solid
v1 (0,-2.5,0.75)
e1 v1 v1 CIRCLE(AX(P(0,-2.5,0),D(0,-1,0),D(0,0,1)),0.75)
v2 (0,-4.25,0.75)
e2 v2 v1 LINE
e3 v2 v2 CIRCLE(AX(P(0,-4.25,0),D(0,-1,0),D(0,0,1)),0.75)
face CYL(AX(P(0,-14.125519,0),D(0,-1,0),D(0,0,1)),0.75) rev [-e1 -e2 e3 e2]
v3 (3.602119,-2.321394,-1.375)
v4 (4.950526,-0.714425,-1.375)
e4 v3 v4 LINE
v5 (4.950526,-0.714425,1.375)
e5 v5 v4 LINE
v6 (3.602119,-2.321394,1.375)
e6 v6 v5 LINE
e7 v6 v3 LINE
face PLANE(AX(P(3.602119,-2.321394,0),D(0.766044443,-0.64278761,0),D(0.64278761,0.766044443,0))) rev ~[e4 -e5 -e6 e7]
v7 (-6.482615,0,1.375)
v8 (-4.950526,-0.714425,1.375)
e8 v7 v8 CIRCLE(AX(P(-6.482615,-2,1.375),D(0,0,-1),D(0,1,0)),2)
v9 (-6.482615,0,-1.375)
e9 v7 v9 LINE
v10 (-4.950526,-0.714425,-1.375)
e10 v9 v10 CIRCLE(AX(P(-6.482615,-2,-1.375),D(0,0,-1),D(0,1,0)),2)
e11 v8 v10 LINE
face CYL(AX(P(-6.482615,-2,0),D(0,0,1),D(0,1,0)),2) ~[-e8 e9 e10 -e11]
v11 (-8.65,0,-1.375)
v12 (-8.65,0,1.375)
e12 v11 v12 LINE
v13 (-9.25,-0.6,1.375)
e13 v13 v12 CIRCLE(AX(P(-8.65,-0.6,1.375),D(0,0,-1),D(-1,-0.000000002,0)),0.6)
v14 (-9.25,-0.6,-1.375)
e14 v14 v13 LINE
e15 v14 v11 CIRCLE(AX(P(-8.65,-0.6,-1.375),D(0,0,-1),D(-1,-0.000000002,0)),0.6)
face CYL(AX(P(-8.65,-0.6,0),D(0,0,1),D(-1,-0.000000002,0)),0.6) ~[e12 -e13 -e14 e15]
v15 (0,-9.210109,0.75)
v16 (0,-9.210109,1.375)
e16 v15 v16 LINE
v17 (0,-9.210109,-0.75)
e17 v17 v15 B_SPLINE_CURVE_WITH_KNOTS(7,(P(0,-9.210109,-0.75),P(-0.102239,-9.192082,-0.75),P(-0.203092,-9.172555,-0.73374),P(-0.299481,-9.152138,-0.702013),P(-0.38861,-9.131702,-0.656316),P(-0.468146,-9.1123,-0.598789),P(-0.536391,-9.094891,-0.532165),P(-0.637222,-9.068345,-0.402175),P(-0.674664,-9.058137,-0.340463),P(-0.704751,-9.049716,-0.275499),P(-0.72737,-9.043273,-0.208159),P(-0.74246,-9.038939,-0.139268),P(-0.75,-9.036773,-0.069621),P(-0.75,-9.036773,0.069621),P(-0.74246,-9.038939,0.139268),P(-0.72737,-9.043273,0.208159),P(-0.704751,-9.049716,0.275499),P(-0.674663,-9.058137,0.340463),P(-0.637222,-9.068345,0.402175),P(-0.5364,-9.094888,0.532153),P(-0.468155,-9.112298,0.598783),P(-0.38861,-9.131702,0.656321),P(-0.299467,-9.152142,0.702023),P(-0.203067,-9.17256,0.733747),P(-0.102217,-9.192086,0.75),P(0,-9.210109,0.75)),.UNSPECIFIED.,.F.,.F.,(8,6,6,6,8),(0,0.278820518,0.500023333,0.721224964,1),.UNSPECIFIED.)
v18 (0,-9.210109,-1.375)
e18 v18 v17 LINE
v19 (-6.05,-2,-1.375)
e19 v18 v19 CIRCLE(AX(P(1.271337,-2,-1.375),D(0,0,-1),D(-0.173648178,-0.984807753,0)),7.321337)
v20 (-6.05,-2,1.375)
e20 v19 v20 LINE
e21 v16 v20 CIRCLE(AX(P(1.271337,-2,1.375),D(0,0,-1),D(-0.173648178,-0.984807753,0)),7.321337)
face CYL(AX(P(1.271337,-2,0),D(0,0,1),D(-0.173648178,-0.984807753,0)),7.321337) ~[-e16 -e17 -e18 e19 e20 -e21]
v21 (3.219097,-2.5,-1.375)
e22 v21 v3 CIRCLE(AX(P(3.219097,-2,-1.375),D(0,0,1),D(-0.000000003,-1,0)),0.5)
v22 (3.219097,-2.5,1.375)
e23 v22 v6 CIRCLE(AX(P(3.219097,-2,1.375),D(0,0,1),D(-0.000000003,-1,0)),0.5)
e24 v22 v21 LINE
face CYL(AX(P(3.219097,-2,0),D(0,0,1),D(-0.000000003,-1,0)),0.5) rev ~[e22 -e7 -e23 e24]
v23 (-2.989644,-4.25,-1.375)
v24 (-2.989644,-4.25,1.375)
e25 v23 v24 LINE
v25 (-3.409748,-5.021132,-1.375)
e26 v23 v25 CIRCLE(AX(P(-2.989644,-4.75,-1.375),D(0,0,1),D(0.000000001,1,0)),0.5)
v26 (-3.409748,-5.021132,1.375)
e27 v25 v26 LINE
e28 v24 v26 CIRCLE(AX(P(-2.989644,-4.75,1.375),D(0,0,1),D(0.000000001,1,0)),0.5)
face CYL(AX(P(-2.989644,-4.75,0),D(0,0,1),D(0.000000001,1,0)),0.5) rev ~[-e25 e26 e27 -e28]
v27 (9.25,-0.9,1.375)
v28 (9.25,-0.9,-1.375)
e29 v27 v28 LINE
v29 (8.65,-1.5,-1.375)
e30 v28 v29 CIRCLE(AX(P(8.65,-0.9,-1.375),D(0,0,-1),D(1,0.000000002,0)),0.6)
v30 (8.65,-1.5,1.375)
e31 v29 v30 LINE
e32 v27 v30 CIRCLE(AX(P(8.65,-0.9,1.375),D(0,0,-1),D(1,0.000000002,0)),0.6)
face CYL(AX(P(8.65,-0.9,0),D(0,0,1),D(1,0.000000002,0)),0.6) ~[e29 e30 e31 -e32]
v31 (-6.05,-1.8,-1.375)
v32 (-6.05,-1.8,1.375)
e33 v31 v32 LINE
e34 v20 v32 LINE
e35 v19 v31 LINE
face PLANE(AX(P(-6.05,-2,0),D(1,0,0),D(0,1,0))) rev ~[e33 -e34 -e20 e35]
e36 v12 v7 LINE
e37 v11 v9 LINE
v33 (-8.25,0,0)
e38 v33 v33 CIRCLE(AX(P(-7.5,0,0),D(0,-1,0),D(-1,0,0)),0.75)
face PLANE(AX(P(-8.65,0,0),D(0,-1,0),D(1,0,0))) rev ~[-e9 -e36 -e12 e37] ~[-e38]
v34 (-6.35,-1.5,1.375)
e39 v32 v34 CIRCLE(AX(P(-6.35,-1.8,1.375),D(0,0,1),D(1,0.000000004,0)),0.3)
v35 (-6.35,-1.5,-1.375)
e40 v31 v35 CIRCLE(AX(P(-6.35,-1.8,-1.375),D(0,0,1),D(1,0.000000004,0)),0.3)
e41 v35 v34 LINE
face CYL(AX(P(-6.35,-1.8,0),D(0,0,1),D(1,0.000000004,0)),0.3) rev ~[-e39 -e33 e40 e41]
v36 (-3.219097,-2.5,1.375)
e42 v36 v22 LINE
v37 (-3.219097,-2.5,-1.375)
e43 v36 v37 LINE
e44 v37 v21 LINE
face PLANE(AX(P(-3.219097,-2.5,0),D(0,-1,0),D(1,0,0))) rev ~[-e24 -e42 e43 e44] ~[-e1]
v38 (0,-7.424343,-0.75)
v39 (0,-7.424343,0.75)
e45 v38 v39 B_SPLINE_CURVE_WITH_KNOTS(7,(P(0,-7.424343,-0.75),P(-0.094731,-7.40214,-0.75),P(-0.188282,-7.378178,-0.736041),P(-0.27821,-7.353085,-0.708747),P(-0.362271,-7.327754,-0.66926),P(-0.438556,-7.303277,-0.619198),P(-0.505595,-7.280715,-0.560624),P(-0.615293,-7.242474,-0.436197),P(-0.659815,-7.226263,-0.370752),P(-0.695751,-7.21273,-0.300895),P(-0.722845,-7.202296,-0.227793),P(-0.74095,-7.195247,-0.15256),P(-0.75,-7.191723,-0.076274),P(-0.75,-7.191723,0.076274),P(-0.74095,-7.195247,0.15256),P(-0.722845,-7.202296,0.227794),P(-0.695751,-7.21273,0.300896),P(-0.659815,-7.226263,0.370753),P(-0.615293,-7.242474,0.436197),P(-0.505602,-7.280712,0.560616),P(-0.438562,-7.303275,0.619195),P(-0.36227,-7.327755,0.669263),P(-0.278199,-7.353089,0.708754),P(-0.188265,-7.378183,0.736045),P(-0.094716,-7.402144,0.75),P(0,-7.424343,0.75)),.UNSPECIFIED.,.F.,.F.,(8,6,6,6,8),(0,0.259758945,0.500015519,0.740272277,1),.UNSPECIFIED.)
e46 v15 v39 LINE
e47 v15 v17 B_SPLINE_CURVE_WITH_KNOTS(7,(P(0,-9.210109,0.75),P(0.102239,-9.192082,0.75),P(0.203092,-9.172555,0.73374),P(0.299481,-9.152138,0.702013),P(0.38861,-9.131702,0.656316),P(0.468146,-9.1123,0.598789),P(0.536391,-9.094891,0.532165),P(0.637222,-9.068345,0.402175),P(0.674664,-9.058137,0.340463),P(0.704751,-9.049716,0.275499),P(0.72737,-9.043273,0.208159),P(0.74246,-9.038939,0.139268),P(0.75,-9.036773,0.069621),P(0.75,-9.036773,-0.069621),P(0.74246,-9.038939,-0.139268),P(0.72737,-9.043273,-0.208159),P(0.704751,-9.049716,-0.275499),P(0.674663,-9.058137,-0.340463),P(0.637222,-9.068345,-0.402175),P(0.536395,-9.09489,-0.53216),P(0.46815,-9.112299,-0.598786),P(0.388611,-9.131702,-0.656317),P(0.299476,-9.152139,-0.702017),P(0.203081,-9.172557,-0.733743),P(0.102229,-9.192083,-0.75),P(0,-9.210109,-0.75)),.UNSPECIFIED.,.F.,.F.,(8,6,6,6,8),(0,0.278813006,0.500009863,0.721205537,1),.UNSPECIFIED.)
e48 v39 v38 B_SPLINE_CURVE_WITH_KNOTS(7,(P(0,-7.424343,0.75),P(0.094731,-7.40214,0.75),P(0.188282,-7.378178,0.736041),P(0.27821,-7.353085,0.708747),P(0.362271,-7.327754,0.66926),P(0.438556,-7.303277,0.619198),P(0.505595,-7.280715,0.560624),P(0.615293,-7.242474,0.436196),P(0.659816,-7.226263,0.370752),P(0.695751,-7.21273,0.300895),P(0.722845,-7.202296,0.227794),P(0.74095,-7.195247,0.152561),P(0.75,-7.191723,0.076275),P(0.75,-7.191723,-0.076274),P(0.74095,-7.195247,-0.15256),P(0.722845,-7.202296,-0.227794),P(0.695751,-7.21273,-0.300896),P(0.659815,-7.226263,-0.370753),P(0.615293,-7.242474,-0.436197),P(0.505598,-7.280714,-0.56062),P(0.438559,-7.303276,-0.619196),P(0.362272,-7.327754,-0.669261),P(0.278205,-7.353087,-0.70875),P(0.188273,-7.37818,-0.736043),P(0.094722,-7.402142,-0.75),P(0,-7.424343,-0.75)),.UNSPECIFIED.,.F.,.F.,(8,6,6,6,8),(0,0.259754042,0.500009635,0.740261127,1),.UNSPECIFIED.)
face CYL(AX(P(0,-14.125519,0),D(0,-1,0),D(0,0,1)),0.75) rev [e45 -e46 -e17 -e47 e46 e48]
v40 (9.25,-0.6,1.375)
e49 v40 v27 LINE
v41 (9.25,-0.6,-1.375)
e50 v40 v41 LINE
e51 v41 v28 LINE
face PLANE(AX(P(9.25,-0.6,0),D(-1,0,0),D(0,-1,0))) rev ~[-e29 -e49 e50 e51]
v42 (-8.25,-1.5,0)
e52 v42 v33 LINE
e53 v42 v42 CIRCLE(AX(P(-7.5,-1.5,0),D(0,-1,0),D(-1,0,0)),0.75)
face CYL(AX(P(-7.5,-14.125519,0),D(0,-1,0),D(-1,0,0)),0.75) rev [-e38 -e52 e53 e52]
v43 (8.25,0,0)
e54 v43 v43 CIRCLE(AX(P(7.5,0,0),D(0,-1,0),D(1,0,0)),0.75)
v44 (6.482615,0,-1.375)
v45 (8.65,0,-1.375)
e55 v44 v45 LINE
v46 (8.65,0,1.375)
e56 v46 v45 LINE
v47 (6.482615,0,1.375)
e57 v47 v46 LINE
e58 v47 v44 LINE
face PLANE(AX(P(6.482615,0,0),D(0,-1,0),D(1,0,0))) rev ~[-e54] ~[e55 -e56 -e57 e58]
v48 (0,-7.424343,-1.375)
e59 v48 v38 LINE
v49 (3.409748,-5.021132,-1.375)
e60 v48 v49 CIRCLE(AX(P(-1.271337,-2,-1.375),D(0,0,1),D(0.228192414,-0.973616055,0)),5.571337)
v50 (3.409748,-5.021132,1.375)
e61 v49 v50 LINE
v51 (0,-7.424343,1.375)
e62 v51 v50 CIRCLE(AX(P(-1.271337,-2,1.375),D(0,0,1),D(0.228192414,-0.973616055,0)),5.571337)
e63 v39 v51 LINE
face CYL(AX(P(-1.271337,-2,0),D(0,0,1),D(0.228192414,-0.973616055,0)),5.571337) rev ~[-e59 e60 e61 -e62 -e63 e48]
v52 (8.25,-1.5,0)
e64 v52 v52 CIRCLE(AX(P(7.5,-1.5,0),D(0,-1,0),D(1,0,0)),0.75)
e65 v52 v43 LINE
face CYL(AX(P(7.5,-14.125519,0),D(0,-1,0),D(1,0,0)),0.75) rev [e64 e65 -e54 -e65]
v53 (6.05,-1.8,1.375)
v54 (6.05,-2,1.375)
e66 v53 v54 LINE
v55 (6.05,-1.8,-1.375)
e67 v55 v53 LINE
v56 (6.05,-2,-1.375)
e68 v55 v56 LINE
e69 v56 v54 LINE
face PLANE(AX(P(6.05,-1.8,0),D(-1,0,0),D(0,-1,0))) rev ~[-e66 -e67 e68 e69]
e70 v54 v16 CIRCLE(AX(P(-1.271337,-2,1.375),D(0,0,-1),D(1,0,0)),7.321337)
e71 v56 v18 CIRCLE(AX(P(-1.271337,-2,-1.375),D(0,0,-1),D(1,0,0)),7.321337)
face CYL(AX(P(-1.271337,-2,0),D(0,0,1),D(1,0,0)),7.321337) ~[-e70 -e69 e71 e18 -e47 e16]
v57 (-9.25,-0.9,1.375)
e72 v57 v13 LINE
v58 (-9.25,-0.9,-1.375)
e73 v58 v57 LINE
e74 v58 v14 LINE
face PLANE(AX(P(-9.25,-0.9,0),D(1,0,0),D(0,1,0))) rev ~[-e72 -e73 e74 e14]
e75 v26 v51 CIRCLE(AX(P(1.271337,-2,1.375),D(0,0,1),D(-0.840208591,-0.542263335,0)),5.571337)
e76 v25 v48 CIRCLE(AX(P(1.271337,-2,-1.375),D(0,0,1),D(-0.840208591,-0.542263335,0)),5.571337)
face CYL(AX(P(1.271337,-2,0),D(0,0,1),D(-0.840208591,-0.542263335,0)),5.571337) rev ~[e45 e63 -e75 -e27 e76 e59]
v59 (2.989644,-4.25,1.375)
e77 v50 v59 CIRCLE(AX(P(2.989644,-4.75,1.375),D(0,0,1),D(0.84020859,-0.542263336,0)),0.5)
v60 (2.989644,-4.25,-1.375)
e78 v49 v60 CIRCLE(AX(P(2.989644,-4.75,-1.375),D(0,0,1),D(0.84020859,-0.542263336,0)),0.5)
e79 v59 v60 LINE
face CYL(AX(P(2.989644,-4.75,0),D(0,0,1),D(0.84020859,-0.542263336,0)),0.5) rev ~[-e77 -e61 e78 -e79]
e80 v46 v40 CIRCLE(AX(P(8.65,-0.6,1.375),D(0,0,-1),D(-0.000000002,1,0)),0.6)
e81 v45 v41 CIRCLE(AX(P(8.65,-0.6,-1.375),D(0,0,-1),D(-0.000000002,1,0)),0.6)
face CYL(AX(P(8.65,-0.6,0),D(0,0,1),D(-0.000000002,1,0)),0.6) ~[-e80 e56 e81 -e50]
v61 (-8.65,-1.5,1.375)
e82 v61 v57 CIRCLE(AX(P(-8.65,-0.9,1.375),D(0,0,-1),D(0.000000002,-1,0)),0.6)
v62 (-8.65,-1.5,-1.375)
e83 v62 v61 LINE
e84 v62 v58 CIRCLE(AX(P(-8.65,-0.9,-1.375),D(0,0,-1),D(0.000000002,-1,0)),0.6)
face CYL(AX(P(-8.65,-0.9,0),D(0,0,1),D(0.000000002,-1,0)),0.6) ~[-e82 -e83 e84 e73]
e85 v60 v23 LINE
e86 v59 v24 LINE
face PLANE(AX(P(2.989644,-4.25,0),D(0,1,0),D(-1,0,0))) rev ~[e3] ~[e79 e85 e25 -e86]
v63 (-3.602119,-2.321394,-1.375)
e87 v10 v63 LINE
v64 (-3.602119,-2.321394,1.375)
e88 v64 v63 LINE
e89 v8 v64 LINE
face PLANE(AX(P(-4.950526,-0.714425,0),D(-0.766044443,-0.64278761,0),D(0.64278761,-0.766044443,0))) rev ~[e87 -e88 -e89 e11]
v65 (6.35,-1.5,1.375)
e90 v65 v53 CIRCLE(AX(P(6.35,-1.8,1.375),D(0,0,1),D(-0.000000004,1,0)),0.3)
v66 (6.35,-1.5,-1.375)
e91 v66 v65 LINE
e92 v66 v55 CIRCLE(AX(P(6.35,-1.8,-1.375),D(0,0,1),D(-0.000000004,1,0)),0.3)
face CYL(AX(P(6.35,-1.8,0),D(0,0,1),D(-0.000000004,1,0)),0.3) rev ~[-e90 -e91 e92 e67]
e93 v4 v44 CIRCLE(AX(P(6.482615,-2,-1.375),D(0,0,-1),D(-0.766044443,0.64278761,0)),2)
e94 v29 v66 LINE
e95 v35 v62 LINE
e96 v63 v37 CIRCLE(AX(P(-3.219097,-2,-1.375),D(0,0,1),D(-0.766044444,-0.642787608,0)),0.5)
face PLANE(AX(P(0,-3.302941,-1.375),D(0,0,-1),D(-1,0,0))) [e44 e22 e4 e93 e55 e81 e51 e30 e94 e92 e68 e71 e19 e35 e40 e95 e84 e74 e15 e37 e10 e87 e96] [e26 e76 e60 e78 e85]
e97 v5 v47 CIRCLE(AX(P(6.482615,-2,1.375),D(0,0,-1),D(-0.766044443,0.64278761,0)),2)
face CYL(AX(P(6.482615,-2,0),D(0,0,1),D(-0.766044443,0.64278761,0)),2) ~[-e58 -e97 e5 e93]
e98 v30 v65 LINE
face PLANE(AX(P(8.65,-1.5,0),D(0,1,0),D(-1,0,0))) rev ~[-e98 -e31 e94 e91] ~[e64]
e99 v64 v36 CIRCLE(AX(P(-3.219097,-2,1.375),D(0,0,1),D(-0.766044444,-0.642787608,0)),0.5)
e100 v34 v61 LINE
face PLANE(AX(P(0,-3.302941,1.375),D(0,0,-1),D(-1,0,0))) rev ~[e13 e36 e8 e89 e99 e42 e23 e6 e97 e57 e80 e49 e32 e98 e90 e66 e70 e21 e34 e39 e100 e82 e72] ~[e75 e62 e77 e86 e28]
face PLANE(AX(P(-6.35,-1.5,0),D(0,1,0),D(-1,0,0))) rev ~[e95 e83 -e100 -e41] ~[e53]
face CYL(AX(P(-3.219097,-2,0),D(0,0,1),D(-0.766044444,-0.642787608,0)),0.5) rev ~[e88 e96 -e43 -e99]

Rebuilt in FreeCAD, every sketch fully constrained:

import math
import FreeCAD as App
import Part
import Sketcher

V = App.Vector
Q = App.Units.Quantity

doc = App.newDocument("Part")
params = doc.addObject("Spreadsheet::Sheet", "Params")
for row, (alias, value) in enumerate([
    ("sketch1_radius", "2 mm"),
    ("sketch1_radius2", "0.6 mm"),
    ("sketch1_radius3", "0.3 mm"),
    ("sketch1_radius4", "0.5 mm"),
    ("sketch1_width", "2.3 mm"),
    ("pad1_length", "2.75 mm"),
    ("sketch2_diameter", "1.5 mm"),
], start=1):
    params.set(f"A{row}", alias)
    params.set(f"B{row}", "=" + value)
    params.setAlias(f"B{row}", alias)

body = doc.addObject("PartDesign::Body", "Body")

sketch1 = body.newObject("Sketcher::SketchObject", "Sketch")
sketch1.AttachmentSupport = (doc.getObject("XY_Plane"), [""])
sketch1.MapMode = "FlatFace"
sketch1.addGeometry(Part.LineSegment(V(-6.48, 0, 0), V(-8.65, 0, 0)), False)
sketch1.addGeometry(Part.ArcOfCircle(Part.Circle(V(-8.65, -0.6, 0), V(0, 0, 1), 0.6), math.radians(90), math.radians(180)), False)
sketch1.addGeometry(Part.LineSegment(V(-9.25, -0.6, 0), V(-9.25, -0.9, 0)), False)
sketch1.addGeometry(Part.ArcOfCircle(Part.Circle(V(-8.65, -0.9, 0), V(0, 0, 1), 0.6), math.radians(180), math.radians(270)), False)
sketch1.addGeometry(Part.LineSegment(V(-8.65, -1.5, 0), V(-6.35, -1.5, 0)), False)
sketch1.addGeometry(Part.ArcOfCircle(Part.Circle(V(-6.35, -1.8, 0), V(0, 0, 1), 0.3), math.radians(0), math.radians(90)), False)
sketch1.addGeometry(Part.LineSegment(V(-6.05, -1.8, 0), V(-6.05, -2, 0)), False)
sketch1.addGeometry(Part.ArcOfCircle(Part.Circle(V(1.27, -2, 0), V(0, 0, 1), 7.32), math.radians(180), math.radians(260)), False)
sketch1.addGeometry(Part.ArcOfCircle(Part.Circle(V(-1.27, -2, 0), V(0, 0, 1), 7.32), math.radians(-80), math.radians(0)), False)
sketch1.addGeometry(Part.LineSegment(V(6.05, -2, 0), V(6.05, -1.8, 0)), False)
sketch1.addGeometry(Part.ArcOfCircle(Part.Circle(V(6.35, -1.8, 0), V(0, 0, 1), 0.3), math.radians(90), math.radians(180)), False)
sketch1.addGeometry(Part.LineSegment(V(6.35, -1.5, 0), V(8.65, -1.5, 0)), False)
sketch1.addGeometry(Part.ArcOfCircle(Part.Circle(V(8.65, -0.9, 0), V(0, 0, 1), 0.6), math.radians(-90), math.radians(0)), False)
sketch1.addGeometry(Part.LineSegment(V(9.25, -0.9, 0), V(9.25, -0.6, 0)), False)
sketch1.addGeometry(Part.ArcOfCircle(Part.Circle(V(8.65, -0.6, 0), V(0, 0, 1), 0.6), math.radians(0), math.radians(90)), False)
sketch1.addGeometry(Part.LineSegment(V(8.65, 0, 0), V(6.48, 0, 0)), False)
sketch1.addGeometry(Part.ArcOfCircle(Part.Circle(V(6.48, -2, 0), V(0, 0, 1), 2), math.radians(90), math.radians(140)), False)
sketch1.addGeometry(Part.LineSegment(V(4.95, -0.71, 0), V(3.6, -2.32, 0)), False)
sketch1.addGeometry(Part.ArcOfCircle(Part.Circle(V(3.22, -2, 0), V(0, 0, 1), 0.5), math.radians(-90), math.radians(-40)), False)
sketch1.addGeometry(Part.LineSegment(V(3.22, -2.5, 0), V(-3.22, -2.5, 0)), False)
sketch1.addGeometry(Part.ArcOfCircle(Part.Circle(V(-3.22, -2, 0), V(0, 0, 1), 0.5), math.radians(-140), math.radians(-90)), False)
sketch1.addGeometry(Part.LineSegment(V(-3.6, -2.32, 0), V(-4.95, -0.71, 0)), False)
sketch1.addGeometry(Part.ArcOfCircle(Part.Circle(V(-6.48, -2, 0), V(0, 0, 1), 2), math.radians(40), math.radians(90)), False)
sketch1.addGeometry(Part.ArcOfCircle(Part.Circle(V(2.99, -4.75, 0), V(0, 0, 1), 0.5), math.radians(-33), math.radians(90)), False)
sketch1.addGeometry(Part.ArcOfCircle(Part.Circle(V(-1.27, -2, 0), V(0, 0, 1), 5.57), math.radians(-77), math.radians(-33)), False)
sketch1.addGeometry(Part.ArcOfCircle(Part.Circle(V(1.27, -2, 0), V(0, 0, 1), 5.57), math.radians(-147), math.radians(-103)), False)
sketch1.addGeometry(Part.ArcOfCircle(Part.Circle(V(-2.99, -4.75, 0), V(0, 0, 1), 0.5), math.radians(90), math.radians(213)), False)
sketch1.addGeometry(Part.LineSegment(V(-2.99, -4.25, 0), V(2.99, -4.25, 0)), False)
sketch1.addConstraint(Sketcher.Constraint("Tangent", 0, 2, 1, 1))
sketch1.addConstraint(Sketcher.Constraint("Tangent", 1, 2, 2, 1))
sketch1.addConstraint(Sketcher.Constraint("Tangent", 2, 2, 3, 1))
sketch1.addConstraint(Sketcher.Constraint("Tangent", 3, 2, 4, 1))
sketch1.addConstraint(Sketcher.Constraint("Tangent", 4, 2, 5, 2))
sketch1.addConstraint(Sketcher.Constraint("Tangent", 5, 1, 6, 1))
sketch1.addConstraint(Sketcher.Constraint("Tangent", 6, 2, 7, 1))
sketch1.addConstraint(Sketcher.Constraint("Coincident", 7, 2, 8, 1))
sketch1.addConstraint(Sketcher.Constraint("Tangent", 8, 2, 9, 1))
sketch1.addConstraint(Sketcher.Constraint("Tangent", 9, 2, 10, 2))
sketch1.addConstraint(Sketcher.Constraint("Tangent", 10, 1, 11, 1))
sketch1.addConstraint(Sketcher.Constraint("Tangent", 11, 2, 12, 1))
sketch1.addConstraint(Sketcher.Constraint("Tangent", 12, 2, 13, 1))
sketch1.addConstraint(Sketcher.Constraint("Tangent", 13, 2, 14, 1))
sketch1.addConstraint(Sketcher.Constraint("Tangent", 14, 2, 15, 1))
sketch1.addConstraint(Sketcher.Constraint("Tangent", 15, 2, 16, 1))
sketch1.addConstraint(Sketcher.Constraint("Tangent", 16, 2, 17, 1))
sketch1.addConstraint(Sketcher.Constraint("Tangent", 17, 2, 18, 2))
sketch1.addConstraint(Sketcher.Constraint("Tangent", 18, 1, 19, 1))
sketch1.addConstraint(Sketcher.Constraint("Tangent", 19, 2, 20, 2))
sketch1.addConstraint(Sketcher.Constraint("Tangent", 20, 1, 21, 1))
sketch1.addConstraint(Sketcher.Constraint("Tangent", 21, 2, 22, 1))
sketch1.addConstraint(Sketcher.Constraint("Tangent", 22, 2, 0, 1))
sketch1.addConstraint(Sketcher.Constraint("Tangent", 23, 1, 24, 2))
sketch1.addConstraint(Sketcher.Constraint("Coincident", 24, 1, 25, 2))
sketch1.addConstraint(Sketcher.Constraint("Tangent", 25, 1, 26, 2))
sketch1.addConstraint(Sketcher.Constraint("Tangent", 26, 1, 27, 1))
sketch1.addConstraint(Sketcher.Constraint("Tangent", 27, 2, 23, 2))
sketch1.addConstraint(Sketcher.Constraint("Horizontal", 0))
sketch1.addConstraint(Sketcher.Constraint("Vertical", 2))
sketch1.addConstraint(Sketcher.Constraint("Horizontal", 4))
sketch1.addConstraint(Sketcher.Constraint("Vertical", 6))
sketch1.addConstraint(Sketcher.Constraint("Vertical", 9))
sketch1.addConstraint(Sketcher.Constraint("Horizontal", 11))
sketch1.addConstraint(Sketcher.Constraint("Vertical", 13))
sketch1.addConstraint(Sketcher.Constraint("Horizontal", 15))
sketch1.addConstraint(Sketcher.Constraint("Horizontal", 19))
sketch1.addConstraint(Sketcher.Constraint("Horizontal", 27))
sketch1.addConstraint(Sketcher.Constraint("Coincident", 24, 3, 8, 3))
sketch1.addConstraint(Sketcher.Constraint("Coincident", 25, 3, 7, 3))
sketch1.addConstraint(Sketcher.Constraint("Equal", 1, 3))
sketch1.addConstraint(Sketcher.Constraint("Equal", 7, 8))
sketch1.addConstraint(Sketcher.Constraint("Equal", 5, 10))
sketch1.addConstraint(Sketcher.Constraint("Equal", 3, 12))
sketch1.addConstraint(Sketcher.Constraint("Equal", 12, 14))
sketch1.addConstraint(Sketcher.Constraint("Equal", 18, 20))
sketch1.addConstraint(Sketcher.Constraint("Equal", 16, 22))
sketch1.addConstraint(Sketcher.Constraint("Equal", 20, 23))
sketch1.addConstraint(Sketcher.Constraint("Equal", 24, 25))
sketch1.addConstraint(Sketcher.Constraint("Equal", 23, 26))
sketch1.addConstraint(Sketcher.Constraint("Symmetric", 0, 2, 14, 2, -1, 1))
sketch1.addConstraint(Sketcher.Constraint("Symmetric", 7, 3, 8, 3, -2))
sketch1.addConstraint(Sketcher.Constraint("Symmetric", 16, 3, 22, 3, -2))
sketch1.addConstraint(Sketcher.Constraint("Horizontal", 5, 3, 10, 3))
sketch1.addConstraint(Sketcher.Constraint("Horizontal", 8, 3, 16, 3))
sketch1.addConstraint(Sketcher.Constraint("Horizontal", 16, 3, 18, 3))
sketch1.addConstraint(Sketcher.Constraint("Horizontal", 17, 2, 20, 1))
sketch1.addConstraint(Sketcher.Constraint("Radius", 16, Q("2 mm")))
sketch1.addConstraint(Sketcher.Constraint("Radius", 1, Q("0.6 mm")))
sketch1.addConstraint(Sketcher.Constraint("Radius", 5, Q("0.3 mm")))
sketch1.addConstraint(Sketcher.Constraint("Radius", 18, Q("0.5 mm")))
sketch1.addConstraint(Sketcher.Constraint("Angle", 17, Q("-130 deg")))
sketch1.addConstraint(Sketcher.Constraint("DistanceX", 4, 1, 4, 2, Q("2.3 mm")))
sketch1.addConstraint(Sketcher.Constraint("DistanceY", 2, 2, 2, 1, Q("0.3 mm")))
sketch1.addConstraint(Sketcher.Constraint("DistanceX", 3, 3, 10, 3, Q("15 mm")))
sketch1.addConstraint(Sketcher.Constraint("DistanceY", 23, 3, -1, 1, Q("4.75 mm")))
sketch1.addConstraint(Sketcher.Constraint("Radius", 7, Q("7.321337 mm")))
sketch1.addConstraint(Sketcher.Constraint("Radius", 24, Q("5.571337 mm")))
sketch1.addConstraint(Sketcher.Constraint("DistanceX", 0, 2, 0, 1, Q("2.167385 mm")))
sketch1.setExpression("Constraints[57]", "Params.sketch1_radius")
sketch1.setExpression("Constraints[58]", "Params.sketch1_radius2")
sketch1.setExpression("Constraints[59]", "Params.sketch1_radius3")
sketch1.setExpression("Constraints[60]", "Params.sketch1_radius4")
sketch1.setExpression("Constraints[62]", "Params.sketch1_width")
pad1 = body.newObject("PartDesign::Pad", "Pad")
pad1.Profile = sketch1
pad1.setExpression("Length", "Params.pad1_length")
pad1.Midplane = True

sketch2 = body.newObject("Sketcher::SketchObject", "Sketch001")
sketch2.AttachmentSupport = (doc.getObject("XZ_Plane"), [""])
sketch2.MapMode = "FlatFace"
sketch2.addGeometry(Part.Circle(V(0, 0, 0), V(0, 0, 1), 0.8), False)
sketch2.addGeometry(Part.Circle(V(-7.5, 0, 0), V(0, 0, 1), 0.8), False)
sketch2.addGeometry(Part.Circle(V(7.5, 0, 0), V(0, 0, 1), 0.8), False)
sketch2.addConstraint(Sketcher.Constraint("Coincident", 0, 3, -1, 1))
sketch2.addConstraint(Sketcher.Constraint("Equal", 0, 1))
sketch2.addConstraint(Sketcher.Constraint("Equal", 1, 2))
sketch2.addConstraint(Sketcher.Constraint("Symmetric", 1, 3, 2, 3, -1, 1))
sketch2.addConstraint(Sketcher.Constraint("PointOnObject", 1, 3, -1))
sketch2.addConstraint(Sketcher.Constraint("Diameter", 0, Q("1.5 mm")))
sketch2.addConstraint(Sketcher.Constraint("DistanceX", 1, 3, 2, 3, Q("15 mm")))
sketch2.setExpression("Constraints[5]", "Params.sketch2_diameter")
pocket1 = body.newObject("PartDesign::Pocket", "Pocket")
pocket1.Profile = sketch2
pocket1.Type = "ThroughAll"
pocket1.Midplane = True

doc.recompute()
